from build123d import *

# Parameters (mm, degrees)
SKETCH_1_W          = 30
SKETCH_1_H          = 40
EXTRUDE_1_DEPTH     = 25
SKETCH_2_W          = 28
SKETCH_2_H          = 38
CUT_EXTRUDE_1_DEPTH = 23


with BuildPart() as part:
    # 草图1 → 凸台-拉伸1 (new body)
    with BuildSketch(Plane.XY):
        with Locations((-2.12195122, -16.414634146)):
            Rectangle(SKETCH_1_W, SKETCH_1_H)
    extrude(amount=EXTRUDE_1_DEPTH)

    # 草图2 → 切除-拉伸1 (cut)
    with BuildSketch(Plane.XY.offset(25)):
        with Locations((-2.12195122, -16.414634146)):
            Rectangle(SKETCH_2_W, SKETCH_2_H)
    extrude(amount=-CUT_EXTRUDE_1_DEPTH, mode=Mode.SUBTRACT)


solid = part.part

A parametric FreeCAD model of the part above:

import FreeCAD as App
import Part
import Sketcher

V = App.Vector

doc = App.newDocument("Part")
body = doc.addObject("PartDesign::Body", "Body")

# Sketch on XY plane
sketch1 = doc.addObject("Sketcher::SketchObject", "Sketch")
body.addObject(sketch1)
sketch1.AttachmentSupport = (doc.XY_Plane, [""])
sketch1.MapMode = "FlatFace"
sketch1.addGeometry(Part.LineSegment(V(-17, 4, 0), V(-17, -36, 0)), False)
sketch1.addGeometry(Part.LineSegment(V(-17, -36, 0), V(13, -36, 0)), False)
sketch1.addGeometry(Part.LineSegment(V(13, -36, 0), V(13, 4, 0)), False)
sketch1.addGeometry(Part.LineSegment(V(13, 4, 0), V(-17, 4, 0)), False)
sketch1.addConstraint(Sketcher.Constraint("Coincident", 0, 2, 1, 1))
sketch1.addConstraint(Sketcher.Constraint("Coincident", 1, 2, 2, 1))
sketch1.addConstraint(Sketcher.Constraint("Coincident", 2, 2, 3, 1))
sketch1.addConstraint(Sketcher.Constraint("Coincident", 3, 2, 0, 1))
sketch1.addConstraint(Sketcher.Constraint("Vertical", 0))
sketch1.addConstraint(Sketcher.Constraint("Horizontal", 1))
sketch1.addConstraint(Sketcher.Constraint("Vertical", 2))
sketch1.addConstraint(Sketcher.Constraint("Horizontal", 3))
sketch1.addConstraint(Sketcher.Constraint("DistanceX", 1, 1, 1, 2, 30.0))
sketch1.addConstraint(Sketcher.Constraint("DistanceY", 0, 2, 0, 1, 40.0))
sketch1.addConstraint(Sketcher.Constraint("DistanceX", 0, 2, -1, 1, 17.121951))
sketch1.addConstraint(Sketcher.Constraint("DistanceY", 0, 2, -1, 1, 36.414634))
pad1 = doc.addObject("PartDesign::Pad", "Pad")
body.addObject(pad1)
pad1.Profile = sketch1
pad1.Length = 25

# Sketch on XY plane
sketch2 = doc.addObject("Sketcher::SketchObject", "Sketch001")
body.addObject(sketch2)
sketch2.AttachmentSupport = (doc.XY_Plane, [""])
sketch2.MapMode = "FlatFace"
sketch2.AttachmentOffset = App.Placement(V(0, 0, 25), App.Rotation())
sketch2.addGeometry(Part.LineSegment(V(-16, 3, 0), V(-16, -35, 0)), False)
sketch2.addGeometry(Part.LineSegment(V(-16, -35, 0), V(12, -35, 0)), False)
sketch2.addGeometry(Part.LineSegment(V(12, -35, 0), V(12, 3, 0)), False)
sketch2.addGeometry(Part.LineSegment(V(12, 3, 0), V(-16, 3, 0)), False)
sketch2.addConstraint(Sketcher.Constraint("Coincident", 0, 2, 1, 1))
sketch2.addConstraint(Sketcher.Constraint("Coincident", 1, 2, 2, 1))
sketch2.addConstraint(Sketcher.Constraint("Coincident", 2, 2, 3, 1))
sketch2.addConstraint(Sketcher.Constraint("Coincident", 3, 2, 0, 1))
sketch2.addConstraint(Sketcher.Constraint("Vertical", 0))
sketch2.addConstraint(Sketcher.Constraint("Horizontal", 1))
sketch2.addConstraint(Sketcher.Constraint("Vertical", 2))
sketch2.addConstraint(Sketcher.Constraint("Horizontal", 3))
sketch2.addConstraint(Sketcher.Constraint("DistanceX", 1, 1, 1, 2, 28.0))
sketch2.addConstraint(Sketcher.Constraint("DistanceY", 0, 2, 0, 1, 38.0))
sketch2.addConstraint(Sketcher.Constraint("DistanceX", 0, 2, -1, 1, 16.121951))
sketch2.addConstraint(Sketcher.Constraint("DistanceY", 0, 2, -1, 1, 35.414634))
pocket1 = doc.addObject("PartDesign::Pocket", "Pocket")
body.addObject(pocket1)
pocket1.Profile = sketch2
pocket1.Length = 23

doc.recompute()
